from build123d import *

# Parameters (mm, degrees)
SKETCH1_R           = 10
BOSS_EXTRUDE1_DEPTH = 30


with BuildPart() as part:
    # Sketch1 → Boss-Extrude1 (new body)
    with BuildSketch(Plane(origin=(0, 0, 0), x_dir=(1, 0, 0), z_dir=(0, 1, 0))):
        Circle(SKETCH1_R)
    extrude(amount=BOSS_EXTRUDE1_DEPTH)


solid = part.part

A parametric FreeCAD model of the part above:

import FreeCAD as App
import Part
import Sketcher
from FreeCAD import Vector
Q = App.Units.Quantity

doc = App.newDocument("Part")
body = doc.addObject("PartDesign::Body", "Body")

# Sketch on XZ plane
sketch1 = doc.addObject("Sketcher::SketchObject", "Sketch")
body.addObject(sketch1)
sketch1.AttachmentSupport = (doc.XZ_Plane, [""])
sketch1.MapMode = "FlatFace"
sketch1.addGeometry(Part.Circle(Vector(0, 0, 0), Vector(0, 0, 1), 10), False)
sketch1.addConstraint([
    Sketcher.Constraint("Coincident", 0, 3, -1, 1),
    Sketcher.Constraint("Diameter", 0, Q("20 mm")),
])
pad1 = doc.addObject("PartDesign::Pad", "Pad")
body.addObject(pad1)
pad1.Profile = sketch1
pad1.Length = 30
pad1.Reversed = True

doc.recompute()
